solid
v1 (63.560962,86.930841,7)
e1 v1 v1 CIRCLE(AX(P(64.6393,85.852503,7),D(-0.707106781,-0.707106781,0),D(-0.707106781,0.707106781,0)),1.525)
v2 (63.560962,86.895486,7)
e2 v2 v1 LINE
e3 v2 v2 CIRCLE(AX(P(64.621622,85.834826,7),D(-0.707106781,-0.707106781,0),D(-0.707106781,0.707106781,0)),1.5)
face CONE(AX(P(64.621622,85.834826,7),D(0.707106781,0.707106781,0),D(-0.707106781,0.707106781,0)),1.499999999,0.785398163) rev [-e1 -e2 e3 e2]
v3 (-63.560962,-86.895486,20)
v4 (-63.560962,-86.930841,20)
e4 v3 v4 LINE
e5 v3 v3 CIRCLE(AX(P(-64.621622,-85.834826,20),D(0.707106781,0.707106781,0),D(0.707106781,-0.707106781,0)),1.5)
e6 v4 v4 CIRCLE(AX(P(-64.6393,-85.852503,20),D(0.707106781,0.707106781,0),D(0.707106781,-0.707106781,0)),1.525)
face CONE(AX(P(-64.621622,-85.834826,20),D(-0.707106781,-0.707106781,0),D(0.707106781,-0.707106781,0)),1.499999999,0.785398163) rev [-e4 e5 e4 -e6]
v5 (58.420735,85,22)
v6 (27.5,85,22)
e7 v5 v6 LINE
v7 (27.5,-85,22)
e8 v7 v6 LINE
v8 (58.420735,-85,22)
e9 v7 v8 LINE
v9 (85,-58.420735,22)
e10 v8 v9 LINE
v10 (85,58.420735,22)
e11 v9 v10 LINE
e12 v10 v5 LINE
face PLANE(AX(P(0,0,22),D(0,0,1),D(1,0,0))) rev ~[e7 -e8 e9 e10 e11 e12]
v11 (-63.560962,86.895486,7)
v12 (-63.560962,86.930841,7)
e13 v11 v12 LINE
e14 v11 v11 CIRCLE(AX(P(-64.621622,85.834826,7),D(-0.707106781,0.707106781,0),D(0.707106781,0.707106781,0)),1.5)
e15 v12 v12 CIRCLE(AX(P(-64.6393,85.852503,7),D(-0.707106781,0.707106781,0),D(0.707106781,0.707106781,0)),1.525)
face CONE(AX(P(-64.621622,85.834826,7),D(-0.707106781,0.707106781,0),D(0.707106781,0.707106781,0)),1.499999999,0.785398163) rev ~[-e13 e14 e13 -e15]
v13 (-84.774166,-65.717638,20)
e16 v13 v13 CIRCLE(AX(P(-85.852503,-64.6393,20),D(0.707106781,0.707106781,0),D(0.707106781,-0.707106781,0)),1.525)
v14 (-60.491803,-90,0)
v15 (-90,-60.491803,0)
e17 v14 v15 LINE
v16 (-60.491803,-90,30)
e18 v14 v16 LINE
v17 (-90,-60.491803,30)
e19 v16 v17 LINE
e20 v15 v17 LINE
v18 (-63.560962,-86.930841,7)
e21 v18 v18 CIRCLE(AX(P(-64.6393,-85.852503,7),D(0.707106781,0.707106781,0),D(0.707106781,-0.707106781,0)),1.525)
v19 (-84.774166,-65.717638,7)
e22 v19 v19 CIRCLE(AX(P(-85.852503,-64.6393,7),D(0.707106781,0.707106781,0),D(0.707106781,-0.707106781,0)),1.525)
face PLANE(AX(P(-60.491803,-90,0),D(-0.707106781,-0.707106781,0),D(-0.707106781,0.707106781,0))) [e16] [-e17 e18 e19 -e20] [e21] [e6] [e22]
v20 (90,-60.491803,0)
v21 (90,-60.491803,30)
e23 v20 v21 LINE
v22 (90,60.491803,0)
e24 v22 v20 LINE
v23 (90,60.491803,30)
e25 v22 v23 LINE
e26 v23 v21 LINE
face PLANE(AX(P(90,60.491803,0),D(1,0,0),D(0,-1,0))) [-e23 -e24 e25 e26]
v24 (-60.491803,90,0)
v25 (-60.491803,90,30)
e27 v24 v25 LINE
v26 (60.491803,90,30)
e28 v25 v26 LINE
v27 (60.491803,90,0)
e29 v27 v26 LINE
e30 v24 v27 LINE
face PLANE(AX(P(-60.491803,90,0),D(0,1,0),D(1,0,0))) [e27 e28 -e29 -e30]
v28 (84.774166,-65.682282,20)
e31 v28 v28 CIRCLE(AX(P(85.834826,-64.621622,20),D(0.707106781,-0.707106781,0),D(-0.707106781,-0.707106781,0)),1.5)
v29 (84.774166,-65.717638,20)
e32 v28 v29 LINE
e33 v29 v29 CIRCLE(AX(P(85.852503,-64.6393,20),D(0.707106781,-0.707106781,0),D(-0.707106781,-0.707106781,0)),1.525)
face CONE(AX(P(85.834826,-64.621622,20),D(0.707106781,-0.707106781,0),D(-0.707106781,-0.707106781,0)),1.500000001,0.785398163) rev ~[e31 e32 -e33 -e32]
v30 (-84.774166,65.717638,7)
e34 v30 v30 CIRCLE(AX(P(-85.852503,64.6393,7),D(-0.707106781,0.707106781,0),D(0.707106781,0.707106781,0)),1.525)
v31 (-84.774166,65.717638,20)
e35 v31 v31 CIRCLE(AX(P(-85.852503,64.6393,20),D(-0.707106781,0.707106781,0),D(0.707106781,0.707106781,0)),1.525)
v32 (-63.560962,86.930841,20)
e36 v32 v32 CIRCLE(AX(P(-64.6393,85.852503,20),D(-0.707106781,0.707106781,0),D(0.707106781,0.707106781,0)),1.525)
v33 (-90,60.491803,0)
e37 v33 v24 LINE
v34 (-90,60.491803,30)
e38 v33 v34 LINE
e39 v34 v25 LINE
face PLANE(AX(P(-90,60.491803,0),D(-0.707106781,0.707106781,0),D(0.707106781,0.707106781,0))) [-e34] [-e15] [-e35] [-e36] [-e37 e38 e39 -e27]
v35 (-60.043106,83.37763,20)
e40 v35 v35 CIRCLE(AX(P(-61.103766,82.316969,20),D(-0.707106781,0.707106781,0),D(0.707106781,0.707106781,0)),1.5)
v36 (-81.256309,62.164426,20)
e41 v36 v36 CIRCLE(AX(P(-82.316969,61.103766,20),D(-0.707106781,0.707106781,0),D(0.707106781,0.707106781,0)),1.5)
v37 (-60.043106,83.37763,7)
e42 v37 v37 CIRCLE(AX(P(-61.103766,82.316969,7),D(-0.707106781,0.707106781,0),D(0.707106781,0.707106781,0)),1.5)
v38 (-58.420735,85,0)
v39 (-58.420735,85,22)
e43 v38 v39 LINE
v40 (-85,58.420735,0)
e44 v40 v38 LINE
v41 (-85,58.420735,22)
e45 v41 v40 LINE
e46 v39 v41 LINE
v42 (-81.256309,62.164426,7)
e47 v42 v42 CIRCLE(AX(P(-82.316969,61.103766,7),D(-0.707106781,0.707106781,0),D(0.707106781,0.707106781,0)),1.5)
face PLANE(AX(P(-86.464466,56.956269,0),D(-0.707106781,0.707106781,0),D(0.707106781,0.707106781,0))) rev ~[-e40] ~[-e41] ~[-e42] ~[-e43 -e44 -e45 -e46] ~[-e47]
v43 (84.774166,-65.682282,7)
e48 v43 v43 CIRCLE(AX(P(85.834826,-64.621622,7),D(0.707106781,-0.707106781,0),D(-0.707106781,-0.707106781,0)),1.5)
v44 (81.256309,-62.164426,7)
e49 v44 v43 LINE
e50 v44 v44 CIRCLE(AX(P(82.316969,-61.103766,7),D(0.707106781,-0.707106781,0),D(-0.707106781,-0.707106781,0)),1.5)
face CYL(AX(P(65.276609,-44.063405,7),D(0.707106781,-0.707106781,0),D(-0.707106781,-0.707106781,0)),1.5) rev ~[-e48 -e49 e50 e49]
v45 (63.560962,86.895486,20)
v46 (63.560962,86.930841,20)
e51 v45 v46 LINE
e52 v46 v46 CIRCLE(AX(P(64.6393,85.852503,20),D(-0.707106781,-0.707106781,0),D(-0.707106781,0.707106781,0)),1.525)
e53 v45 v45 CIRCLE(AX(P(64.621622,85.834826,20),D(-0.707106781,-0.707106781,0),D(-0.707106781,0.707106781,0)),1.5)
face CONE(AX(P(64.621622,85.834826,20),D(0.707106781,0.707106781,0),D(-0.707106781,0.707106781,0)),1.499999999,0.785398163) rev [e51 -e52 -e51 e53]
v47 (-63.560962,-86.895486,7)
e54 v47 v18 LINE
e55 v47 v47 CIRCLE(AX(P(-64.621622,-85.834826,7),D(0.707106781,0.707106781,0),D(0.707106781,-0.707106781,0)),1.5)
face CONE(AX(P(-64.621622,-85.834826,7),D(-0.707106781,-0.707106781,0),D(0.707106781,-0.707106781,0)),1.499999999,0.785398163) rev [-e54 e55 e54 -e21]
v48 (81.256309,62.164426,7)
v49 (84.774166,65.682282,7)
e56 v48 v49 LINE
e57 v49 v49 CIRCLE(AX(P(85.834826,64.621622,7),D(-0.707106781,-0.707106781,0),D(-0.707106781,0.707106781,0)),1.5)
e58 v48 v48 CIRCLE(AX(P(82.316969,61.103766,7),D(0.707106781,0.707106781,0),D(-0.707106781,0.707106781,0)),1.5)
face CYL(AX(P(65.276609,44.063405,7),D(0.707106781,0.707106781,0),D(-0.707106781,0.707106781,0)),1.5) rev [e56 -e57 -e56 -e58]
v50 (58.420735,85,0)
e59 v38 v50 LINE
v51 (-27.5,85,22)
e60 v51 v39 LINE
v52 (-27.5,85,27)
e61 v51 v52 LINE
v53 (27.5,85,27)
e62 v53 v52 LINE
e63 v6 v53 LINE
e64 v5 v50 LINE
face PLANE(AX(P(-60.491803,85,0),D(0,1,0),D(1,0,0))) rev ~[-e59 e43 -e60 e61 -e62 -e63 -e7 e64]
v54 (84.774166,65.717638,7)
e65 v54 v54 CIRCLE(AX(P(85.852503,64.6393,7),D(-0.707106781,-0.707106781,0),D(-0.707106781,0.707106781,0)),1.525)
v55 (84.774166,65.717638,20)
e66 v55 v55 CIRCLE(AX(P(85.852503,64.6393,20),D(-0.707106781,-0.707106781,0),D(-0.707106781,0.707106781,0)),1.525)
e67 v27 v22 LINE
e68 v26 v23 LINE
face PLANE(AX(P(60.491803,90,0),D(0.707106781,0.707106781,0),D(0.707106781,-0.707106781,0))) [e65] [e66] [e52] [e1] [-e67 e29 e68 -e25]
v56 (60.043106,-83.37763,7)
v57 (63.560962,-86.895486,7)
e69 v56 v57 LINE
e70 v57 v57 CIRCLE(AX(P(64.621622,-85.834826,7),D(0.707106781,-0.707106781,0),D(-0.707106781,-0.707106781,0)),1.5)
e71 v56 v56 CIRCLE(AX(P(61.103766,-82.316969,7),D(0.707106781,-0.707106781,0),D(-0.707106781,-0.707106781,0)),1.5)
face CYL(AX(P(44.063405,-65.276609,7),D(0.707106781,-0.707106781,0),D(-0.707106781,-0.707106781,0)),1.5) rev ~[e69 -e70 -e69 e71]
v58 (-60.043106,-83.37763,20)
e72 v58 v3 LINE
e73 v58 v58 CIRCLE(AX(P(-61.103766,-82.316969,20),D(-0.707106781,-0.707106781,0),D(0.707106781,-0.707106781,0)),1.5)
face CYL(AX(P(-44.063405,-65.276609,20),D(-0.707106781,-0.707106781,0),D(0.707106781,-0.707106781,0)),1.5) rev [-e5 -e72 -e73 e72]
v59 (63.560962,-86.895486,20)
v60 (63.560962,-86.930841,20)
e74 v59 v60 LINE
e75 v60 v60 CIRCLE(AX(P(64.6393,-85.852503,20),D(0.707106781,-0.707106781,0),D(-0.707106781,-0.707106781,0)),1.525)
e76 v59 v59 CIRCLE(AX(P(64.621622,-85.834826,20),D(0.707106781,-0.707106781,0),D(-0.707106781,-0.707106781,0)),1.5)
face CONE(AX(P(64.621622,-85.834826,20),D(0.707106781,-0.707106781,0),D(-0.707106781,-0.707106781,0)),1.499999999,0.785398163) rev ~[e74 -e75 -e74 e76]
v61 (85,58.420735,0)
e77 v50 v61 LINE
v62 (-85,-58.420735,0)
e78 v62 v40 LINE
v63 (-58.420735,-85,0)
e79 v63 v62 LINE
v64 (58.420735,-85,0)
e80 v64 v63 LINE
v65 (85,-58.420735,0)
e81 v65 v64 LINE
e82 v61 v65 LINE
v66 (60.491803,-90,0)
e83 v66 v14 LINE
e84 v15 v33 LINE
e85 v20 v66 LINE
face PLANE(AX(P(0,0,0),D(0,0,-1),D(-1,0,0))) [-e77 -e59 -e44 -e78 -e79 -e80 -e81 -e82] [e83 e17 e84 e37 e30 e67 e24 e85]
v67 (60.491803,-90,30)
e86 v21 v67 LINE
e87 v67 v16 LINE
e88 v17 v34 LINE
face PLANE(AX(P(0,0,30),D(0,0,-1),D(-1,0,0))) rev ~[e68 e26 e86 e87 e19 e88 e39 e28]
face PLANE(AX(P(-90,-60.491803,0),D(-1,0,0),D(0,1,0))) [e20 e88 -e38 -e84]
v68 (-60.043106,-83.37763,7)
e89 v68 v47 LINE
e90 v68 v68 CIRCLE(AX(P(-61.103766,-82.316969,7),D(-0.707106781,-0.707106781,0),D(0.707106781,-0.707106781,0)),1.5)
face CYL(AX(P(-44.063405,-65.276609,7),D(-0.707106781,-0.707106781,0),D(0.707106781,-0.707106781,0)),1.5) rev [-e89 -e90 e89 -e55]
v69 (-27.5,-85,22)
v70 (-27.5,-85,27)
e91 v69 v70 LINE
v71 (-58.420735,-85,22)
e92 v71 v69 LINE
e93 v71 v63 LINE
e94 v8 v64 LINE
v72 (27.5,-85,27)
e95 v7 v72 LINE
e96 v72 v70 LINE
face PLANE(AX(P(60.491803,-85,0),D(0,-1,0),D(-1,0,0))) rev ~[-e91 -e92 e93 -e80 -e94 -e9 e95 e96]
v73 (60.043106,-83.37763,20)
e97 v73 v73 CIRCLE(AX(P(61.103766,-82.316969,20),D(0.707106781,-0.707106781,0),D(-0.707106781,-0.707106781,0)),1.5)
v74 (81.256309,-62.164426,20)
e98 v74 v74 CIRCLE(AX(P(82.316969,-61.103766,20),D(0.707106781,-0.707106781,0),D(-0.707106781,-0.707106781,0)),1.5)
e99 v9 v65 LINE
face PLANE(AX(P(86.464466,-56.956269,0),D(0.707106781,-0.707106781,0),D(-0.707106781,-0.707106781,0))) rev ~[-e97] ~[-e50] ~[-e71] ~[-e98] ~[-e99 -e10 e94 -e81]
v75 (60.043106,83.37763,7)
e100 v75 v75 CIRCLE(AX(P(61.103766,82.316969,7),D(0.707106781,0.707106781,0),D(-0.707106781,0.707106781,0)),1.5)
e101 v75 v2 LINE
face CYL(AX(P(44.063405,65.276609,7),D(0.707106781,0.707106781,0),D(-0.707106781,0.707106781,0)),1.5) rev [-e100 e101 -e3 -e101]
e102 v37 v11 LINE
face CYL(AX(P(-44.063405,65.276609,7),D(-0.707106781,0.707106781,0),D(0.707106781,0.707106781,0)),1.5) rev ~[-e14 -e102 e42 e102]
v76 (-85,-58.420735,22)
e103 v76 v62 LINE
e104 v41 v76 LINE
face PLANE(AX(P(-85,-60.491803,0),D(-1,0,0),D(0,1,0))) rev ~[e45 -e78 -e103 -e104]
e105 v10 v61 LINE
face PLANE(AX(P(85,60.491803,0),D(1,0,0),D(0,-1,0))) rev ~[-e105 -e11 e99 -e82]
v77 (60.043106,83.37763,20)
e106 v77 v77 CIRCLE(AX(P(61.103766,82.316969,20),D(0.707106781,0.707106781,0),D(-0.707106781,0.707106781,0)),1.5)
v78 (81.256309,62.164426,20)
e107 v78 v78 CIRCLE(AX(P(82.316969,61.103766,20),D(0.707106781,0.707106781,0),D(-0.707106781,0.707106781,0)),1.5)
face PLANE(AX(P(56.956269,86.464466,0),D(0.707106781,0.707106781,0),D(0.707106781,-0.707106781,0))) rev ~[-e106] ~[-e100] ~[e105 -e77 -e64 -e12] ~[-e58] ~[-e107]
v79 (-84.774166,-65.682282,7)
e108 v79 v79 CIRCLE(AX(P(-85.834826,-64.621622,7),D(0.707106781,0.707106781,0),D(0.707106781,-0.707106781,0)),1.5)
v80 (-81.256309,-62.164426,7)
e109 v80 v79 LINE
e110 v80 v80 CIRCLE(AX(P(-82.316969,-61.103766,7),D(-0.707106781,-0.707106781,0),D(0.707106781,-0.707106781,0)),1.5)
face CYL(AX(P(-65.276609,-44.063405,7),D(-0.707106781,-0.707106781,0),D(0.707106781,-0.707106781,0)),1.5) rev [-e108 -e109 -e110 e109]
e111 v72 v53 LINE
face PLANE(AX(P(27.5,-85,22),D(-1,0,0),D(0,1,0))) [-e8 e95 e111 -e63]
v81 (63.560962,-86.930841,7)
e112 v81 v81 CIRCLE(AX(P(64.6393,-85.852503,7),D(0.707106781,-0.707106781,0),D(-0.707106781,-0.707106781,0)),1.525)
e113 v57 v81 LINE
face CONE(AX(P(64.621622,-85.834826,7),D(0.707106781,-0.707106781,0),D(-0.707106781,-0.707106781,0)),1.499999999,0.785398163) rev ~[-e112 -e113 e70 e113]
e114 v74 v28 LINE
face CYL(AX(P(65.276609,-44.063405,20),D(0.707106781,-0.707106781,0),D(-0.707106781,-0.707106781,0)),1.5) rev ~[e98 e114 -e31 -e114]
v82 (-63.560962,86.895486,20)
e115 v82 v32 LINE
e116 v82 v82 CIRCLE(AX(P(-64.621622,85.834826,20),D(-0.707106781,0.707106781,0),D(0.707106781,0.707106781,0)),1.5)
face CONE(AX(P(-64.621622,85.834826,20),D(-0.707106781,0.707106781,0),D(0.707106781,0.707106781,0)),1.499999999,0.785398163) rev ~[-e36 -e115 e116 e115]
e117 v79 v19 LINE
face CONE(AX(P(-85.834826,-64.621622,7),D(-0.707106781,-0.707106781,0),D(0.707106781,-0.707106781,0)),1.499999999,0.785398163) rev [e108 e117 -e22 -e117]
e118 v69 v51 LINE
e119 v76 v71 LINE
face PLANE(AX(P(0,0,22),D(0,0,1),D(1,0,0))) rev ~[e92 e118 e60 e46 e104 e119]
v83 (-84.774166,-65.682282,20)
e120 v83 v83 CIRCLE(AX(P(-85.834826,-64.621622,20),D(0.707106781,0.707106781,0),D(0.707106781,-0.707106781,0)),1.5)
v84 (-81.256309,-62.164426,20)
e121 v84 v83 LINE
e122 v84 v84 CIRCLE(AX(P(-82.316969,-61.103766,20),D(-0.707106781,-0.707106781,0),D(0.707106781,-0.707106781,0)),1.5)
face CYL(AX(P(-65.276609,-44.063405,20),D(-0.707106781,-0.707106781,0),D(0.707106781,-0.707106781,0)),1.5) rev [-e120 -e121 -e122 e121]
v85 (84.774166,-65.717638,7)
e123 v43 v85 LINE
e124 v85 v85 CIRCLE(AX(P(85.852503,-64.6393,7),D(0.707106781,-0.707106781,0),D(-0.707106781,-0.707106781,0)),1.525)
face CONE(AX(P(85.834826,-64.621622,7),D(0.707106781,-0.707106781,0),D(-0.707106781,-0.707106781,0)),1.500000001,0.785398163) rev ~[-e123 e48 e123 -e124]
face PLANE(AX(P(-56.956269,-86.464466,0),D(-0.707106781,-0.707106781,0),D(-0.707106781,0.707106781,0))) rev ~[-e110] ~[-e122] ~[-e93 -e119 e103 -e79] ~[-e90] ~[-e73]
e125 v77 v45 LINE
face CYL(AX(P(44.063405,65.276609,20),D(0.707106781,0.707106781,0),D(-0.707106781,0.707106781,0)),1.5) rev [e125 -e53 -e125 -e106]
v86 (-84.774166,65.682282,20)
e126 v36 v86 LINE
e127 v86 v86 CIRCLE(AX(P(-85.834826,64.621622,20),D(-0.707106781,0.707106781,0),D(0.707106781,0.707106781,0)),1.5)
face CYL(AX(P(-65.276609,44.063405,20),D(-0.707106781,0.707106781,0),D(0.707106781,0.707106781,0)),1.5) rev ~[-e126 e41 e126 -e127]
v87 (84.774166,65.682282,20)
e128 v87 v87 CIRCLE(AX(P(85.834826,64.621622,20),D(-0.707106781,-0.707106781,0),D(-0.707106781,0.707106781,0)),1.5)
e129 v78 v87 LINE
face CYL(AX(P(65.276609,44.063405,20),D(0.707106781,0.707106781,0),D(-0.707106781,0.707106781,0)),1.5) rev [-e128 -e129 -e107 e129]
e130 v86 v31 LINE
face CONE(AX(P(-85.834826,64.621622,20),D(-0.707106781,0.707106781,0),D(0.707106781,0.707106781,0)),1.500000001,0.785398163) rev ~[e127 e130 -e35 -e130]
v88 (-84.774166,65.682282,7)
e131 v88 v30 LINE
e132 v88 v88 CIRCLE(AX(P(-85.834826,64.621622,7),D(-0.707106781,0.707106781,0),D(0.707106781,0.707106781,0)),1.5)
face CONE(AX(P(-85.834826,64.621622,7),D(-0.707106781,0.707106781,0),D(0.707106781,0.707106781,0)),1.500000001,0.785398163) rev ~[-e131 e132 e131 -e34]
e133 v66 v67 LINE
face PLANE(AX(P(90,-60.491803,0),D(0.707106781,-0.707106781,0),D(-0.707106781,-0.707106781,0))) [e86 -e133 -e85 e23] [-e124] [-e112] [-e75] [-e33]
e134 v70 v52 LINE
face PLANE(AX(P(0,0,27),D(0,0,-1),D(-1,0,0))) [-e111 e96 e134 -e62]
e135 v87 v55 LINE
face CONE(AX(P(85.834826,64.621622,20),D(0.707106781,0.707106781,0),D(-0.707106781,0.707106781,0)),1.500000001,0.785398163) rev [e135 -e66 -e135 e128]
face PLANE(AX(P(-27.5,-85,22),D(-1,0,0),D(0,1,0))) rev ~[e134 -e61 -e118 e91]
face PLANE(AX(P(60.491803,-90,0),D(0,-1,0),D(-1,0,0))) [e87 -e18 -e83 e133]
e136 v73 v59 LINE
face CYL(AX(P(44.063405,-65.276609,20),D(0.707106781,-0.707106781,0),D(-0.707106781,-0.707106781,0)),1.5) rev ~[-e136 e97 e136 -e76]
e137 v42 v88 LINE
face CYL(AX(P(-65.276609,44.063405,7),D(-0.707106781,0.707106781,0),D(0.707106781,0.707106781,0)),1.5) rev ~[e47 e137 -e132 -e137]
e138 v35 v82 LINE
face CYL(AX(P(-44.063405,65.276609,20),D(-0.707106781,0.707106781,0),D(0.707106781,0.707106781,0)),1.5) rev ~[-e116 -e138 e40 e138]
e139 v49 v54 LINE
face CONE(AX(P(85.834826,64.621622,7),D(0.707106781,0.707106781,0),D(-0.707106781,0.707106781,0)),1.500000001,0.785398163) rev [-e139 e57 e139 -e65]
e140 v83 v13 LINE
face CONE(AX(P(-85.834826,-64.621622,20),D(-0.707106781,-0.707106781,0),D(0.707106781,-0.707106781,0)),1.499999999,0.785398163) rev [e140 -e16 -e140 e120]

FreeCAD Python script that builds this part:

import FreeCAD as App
import Part
import Sketcher
Q = App.Units.Quantity


def faces_at(feature, points):
    """Names of the faces that lie closest to the given points."""
    faces = feature.Shape.Faces
    near = lambda p: min(range(len(faces)), key=lambda i: faces[i].distToShape(Part.Vertex(*p))[0])
    return sorted({f"Face{near(p) + 1}" for p in points})

doc = App.newDocument("Part")
body = doc.addObject("PartDesign::Body", "Body")

# Sketch on XY plane
sketch1 = body.newObject("Sketcher::SketchObject", "Sketch")
sketch1.AttachmentSupport = (doc.getObject("XY_Plane"), [""])
sketch1.MapMode = "FlatFace"
sketch1.addGeometry(Part.LineSegment(App.Vector(60, 90, 0), App.Vector(-60, 90, 0)), False)
sketch1.addGeometry(Part.LineSegment(App.Vector(-60, 90, 0), App.Vector(-90, 60, 0)), False)
sketch1.addGeometry(Part.LineSegment(App.Vector(-90, 60, 0), App.Vector(-90, -60, 0)), False)
sketch1.addGeometry(Part.LineSegment(App.Vector(-90, -60, 0), App.Vector(-60, -90, 0)), False)
sketch1.addGeometry(Part.LineSegment(App.Vector(-60, -90, 0), App.Vector(60, -90, 0)), False)
sketch1.addGeometry(Part.LineSegment(App.Vector(60, -90, 0), App.Vector(90, -60, 0)), False)
sketch1.addGeometry(Part.LineSegment(App.Vector(90, -60, 0), App.Vector(90, 60, 0)), False)
sketch1.addGeometry(Part.LineSegment(App.Vector(90, 60, 0), App.Vector(60, 90, 0)), False)
sketch1.addConstraint(Sketcher.Constraint("Coincident", 0, 2, 1, 1))
sketch1.addConstraint(Sketcher.Constraint("Coincident", 1, 2, 2, 1))
sketch1.addConstraint(Sketcher.Constraint("Coincident", 2, 2, 3, 1))
sketch1.addConstraint(Sketcher.Constraint("Coincident", 3, 2, 4, 1))
sketch1.addConstraint(Sketcher.Constraint("Coincident", 4, 2, 5, 1))
sketch1.addConstraint(Sketcher.Constraint("Coincident", 5, 2, 6, 1))
sketch1.addConstraint(Sketcher.Constraint("Coincident", 6, 2, 7, 1))
sketch1.addConstraint(Sketcher.Constraint("Coincident", 7, 2, 0, 1))
sketch1.addConstraint(Sketcher.Constraint("Horizontal", 0))
sketch1.addConstraint(Sketcher.Constraint("Vertical", 2))
sketch1.addConstraint(Sketcher.Constraint("Horizontal", 4))
sketch1.addConstraint(Sketcher.Constraint("Vertical", 6))
sketch1.addConstraint(Sketcher.Constraint("Symmetric", 0, 2, 4, 2, -1, 1))
sketch1.addConstraint(Sketcher.Constraint("Symmetric", 1, 2, 5, 2, -1, 1))
sketch1.addConstraint(Sketcher.Constraint("Perpendicular", 1, 3))
sketch1.addConstraint(Sketcher.Constraint("Perpendicular", 5, 7))
sketch1.addConstraint(Sketcher.Constraint("Horizontal", 2, 2, 5, 2))
sketch1.addConstraint(Sketcher.Constraint("Horizontal", 1, 2, 6, 2))
sketch1.addConstraint(Sketcher.Constraint("Vertical", 0, 2, 3, 2))
sketch1.addConstraint(Sketcher.Constraint("Equal", 4, 2))
sketch1.addConstraint(Sketcher.Constraint("DistanceY", -1, 1, 0, 2, 90.0))
sketch1.addConstraint(Sketcher.Constraint("DistanceX", 0, 2, 0, 1, 120.983607))
pad1 = body.newObject("PartDesign::Pad", "Pad")
pad1.Profile = sketch1
pad1.Length = 30
doc.recompute()

thickness = body.newObject("PartDesign::Thickness", "Thickness")
thickness.Base = (pad1, faces_at(pad1, [(0, 0, 0)]))
thickness.Value = 5
thickness.Reversed = True
thickness.Join = "Intersection"

# Sketch on XY plane
sketch2 = body.newObject("Sketcher::SketchObject", "Sketch001")
sketch2.AttachmentSupport = (doc.getObject("XY_Plane"), [""])
sketch2.MapMode = "FlatFace"
sketch2.AttachmentOffset = App.Placement(App.Vector(0, 0, 7), App.Rotation())
sketch2.addGeometry(Part.LineSegment(App.Vector(-43.426, -64.639, 0), App.Vector(-64.639, -85.853, 0)), False)
sketch2.addGeometry(Part.LineSegment(App.Vector(-64.639, -85.853, 0), App.Vector(-63.561, -86.931, 0)), False)
sketch2.addGeometry(Part.LineSegment(App.Vector(-63.561, -86.931, 0), App.Vector(-63.561, -86.895, 0)), False)
sketch2.addGeometry(Part.LineSegment(App.Vector(-63.561, -86.895, 0), App.Vector(-43.003, -66.337, 0)), False)
sketch2.addGeometry(Part.LineSegment(App.Vector(-43.003, -66.337, 0), App.Vector(-43.426, -64.639, 0)), False)
sketch2.addGeometry(Part.LineSegment(App.Vector(-64.639, -85.853, 0), App.Vector(-43.426, -64.639, 0)), True)  # axis
sketch2.addConstraint(Sketcher.Constraint("Coincident", 0, 2, 1, 1))
sketch2.addConstraint(Sketcher.Constraint("Coincident", 1, 2, 2, 1))
sketch2.addConstraint(Sketcher.Constraint("Coincident", 2, 2, 3, 1))
sketch2.addConstraint(Sketcher.Constraint("Coincident", 3, 2, 4, 1))
sketch2.addConstraint(Sketcher.Constraint("Coincident", 4, 2, 0, 1))
sketch2.addConstraint(Sketcher.Constraint("Vertical", 2))
sketch2.addConstraint(Sketcher.Constraint("Coincident", 5, 1, 0, 2))
sketch2.addConstraint(Sketcher.Constraint("Coincident", 5, 2, 4, 2))
sketch2.addConstraint(Sketcher.Constraint("Perpendicular", 0, 1))
sketch2.addConstraint(Sketcher.Constraint("Perpendicular", 1, 3))
sketch2.addConstraint(Sketcher.Constraint("Angle", 0, Q("-135 deg")))
sketch2.addConstraint(Sketcher.Constraint("Angle", 4, Q("104 deg")))
sketch2.addConstraint(Sketcher.Constraint("Distance", 0, 30.0))
sketch2.addConstraint(Sketcher.Constraint("Distance", 1, 1.525))
sketch2.addConstraint(Sketcher.Constraint("DistanceX", 0, 2, -1, 1, 64.6393))
sketch2.addConstraint(Sketcher.Constraint("DistanceY", 4, 2, -1, 1, 64.6393))
sketch2.addConstraint(Sketcher.Constraint("Distance", 3, 29.073709))
groove = body.newObject("PartDesign::Groove", "Groove")
groove.Profile = sketch2
groove.ReferenceAxis = (sketch2, ["Axis0"])
groove.Angle = 360
doc.recompute()

datumline = body.newObject("PartDesign::Line", "DatumLine")
datumline.Placement = App.Placement(App.Vector(0, 0, 0), App.Rotation(App.Vector(0, 0, 1), App.Vector(-0.707106781, 0.707106781, 0)))
linearpattern = body.newObject("PartDesign::LinearPattern", "LinearPattern")
linearpattern.Originals = [groove]
linearpattern.Direction = (datumline, [""])
linearpattern.Mode = "offset"
linearpattern.Offset = 30
linearpattern.Occurrences = 2
body.Tip = linearpattern
doc.recompute()

datumline2 = body.newObject("PartDesign::Line", "DatumLine001")
datumline2.Placement = App.Placement(App.Vector(0, 0, 0), App.Rotation(App.Vector(0, 0, 1), App.Vector(-0.648809805, 0.648809805, 0.397607438)))
linearpattern2 = body.newObject("PartDesign::LinearPattern", "LinearPattern001")
linearpattern2.Originals = [groove]
linearpattern2.Direction = (datumline2, [""])
linearpattern2.Mode = "offset"
linearpattern2.Offset = 32.695565
linearpattern2.Occurrences = 2
body.Tip = linearpattern2
doc.recompute()

linearpattern3 = body.newObject("PartDesign::LinearPattern", "LinearPattern002")
linearpattern3.Originals = [groove]
linearpattern3.Direction = (doc.getObject("Z_Axis"), [""])
linearpattern3.Mode = "offset"
linearpattern3.Offset = 13
linearpattern3.Occurrences = 2
body.Tip = linearpattern3
doc.recompute()

mirrored = body.newObject("PartDesign::Mirrored", "Mirrored")
mirrored.Originals = [groove]
mirrored.MirrorPlane = (doc.getObject("XZ_Plane"), [""])
body.Tip = mirrored

# Sketch on XY plane
sketch3 = body.newObject("Sketcher::SketchObject", "Sketch002")
sketch3.AttachmentSupport = (doc.getObject("XY_Plane"), [""])
sketch3.MapMode = "FlatFace"
sketch3.AttachmentOffset = App.Placement(App.Vector(0, 0, 7), App.Rotation())
sketch3.addGeometry(Part.LineSegment(App.Vector(-85.853, 64.639, 0), App.Vector(-64.639, 43.426, 0)), False)
sketch3.addGeometry(Part.LineSegment(App.Vector(-64.639, 43.426, 0), App.Vector(-64.216, 45.124, 0)), False)
sketch3.addGeometry(Part.LineSegment(App.Vector(-64.216, 45.124, 0), App.Vector(-84.774, 65.682, 0)), False)
sketch3.addGeometry(Part.LineSegment(App.Vector(-84.774, 65.682, 0), App.Vector(-84.774, 65.718, 0)), False)
sketch3.addGeometry(Part.LineSegment(App.Vector(-84.774, 65.718, 0), App.Vector(-85.853, 64.639, 0)), False)
sketch3.addGeometry(Part.LineSegment(App.Vector(-64.639, 43.426, 0), App.Vector(-85.853, 64.639, 0)), True)  # axis
sketch3.addConstraint(Sketcher.Constraint("Coincident", 0, 2, 1, 1))
sketch3.addConstraint(Sketcher.Constraint("Coincident", 1, 2, 2, 1))
sketch3.addConstraint(Sketcher.Constraint("Coincident", 2, 2, 3, 1))
sketch3.addConstraint(Sketcher.Constraint("Coincident", 3, 2, 4, 1))
sketch3.addConstraint(Sketcher.Constraint("Coincident", 4, 2, 0, 1))
sketch3.addConstraint(Sketcher.Constraint("Vertical", 3))
sketch3.addConstraint(Sketcher.Constraint("Coincident", 5, 1, 0, 2))
sketch3.addConstraint(Sketcher.Constraint("Coincident", 5, 2, 4, 2))
sketch3.addConstraint(Sketcher.Constraint("Parallel", 0, 2))
sketch3.addConstraint(Sketcher.Constraint("Perpendicular", 2, 4))
sketch3.addConstraint(Sketcher.Constraint("Angle", 0, Q("-45 deg")))
sketch3.addConstraint(Sketcher.Constraint("Angle", 1, Q("76 deg")))
sketch3.addConstraint(Sketcher.Constraint("Distance", 0, 30.0))
sketch3.addConstraint(Sketcher.Constraint("Distance", 4, 1.525))
sketch3.addConstraint(Sketcher.Constraint("DistanceX", 0, 2, -1, 1, 64.6393))
sketch3.addConstraint(Sketcher.Constraint("DistanceY", -1, 1, 4, 2, 64.6393))
sketch3.addConstraint(Sketcher.Constraint("Distance", 1, 1.74995))
groove2 = body.newObject("PartDesign::Groove", "Groove001")
groove2.Profile = sketch3
groove2.ReferenceAxis = (sketch3, ["Axis0"])
groove2.Angle = 360

# Sketch on XY plane
sketch4 = body.newObject("Sketcher::SketchObject", "Sketch003")
sketch4.AttachmentSupport = (doc.getObject("XY_Plane"), [""])
sketch4.MapMode = "FlatFace"
sketch4.AttachmentOffset = App.Placement(App.Vector(0, 0, 20), App.Rotation())
sketch4.addGeometry(Part.LineSegment(App.Vector(-85.853, 64.639, 0), App.Vector(-64.639, 43.426, 0)), False)
sketch4.addGeometry(Part.LineSegment(App.Vector(-64.639, 43.426, 0), App.Vector(-64.216, 45.124, 0)), False)
sketch4.addGeometry(Part.LineSegment(App.Vector(-64.216, 45.124, 0), App.Vector(-84.774, 65.682, 0)), False)
sketch4.addGeometry(Part.LineSegment(App.Vector(-84.774, 65.682, 0), App.Vector(-84.774, 65.718, 0)), False)
sketch4.addGeometry(Part.LineSegment(App.Vector(-84.774, 65.718, 0), App.Vector(-85.853, 64.639, 0)), False)
sketch4.addGeometry(Part.LineSegment(App.Vector(-64.639, 43.426, 0), App.Vector(-85.853, 64.639, 0)), True)  # axis
sketch4.addConstraint(Sketcher.Constraint("Coincident", 0, 2, 1, 1))
sketch4.addConstraint(Sketcher.Constraint("Coincident", 1, 2, 2, 1))
sketch4.addConstraint(Sketcher.Constraint("Coincident", 2, 2, 3, 1))
sketch4.addConstraint(Sketcher.Constraint("Coincident", 3, 2, 4, 1))
sketch4.addConstraint(Sketcher.Constraint("Coincident", 4, 2, 0, 1))
sketch4.addConstraint(Sketcher.Constraint("Vertical", 3))
sketch4.addConstraint(Sketcher.Constraint("Coincident", 5, 1, 0, 2))
sketch4.addConstraint(Sketcher.Constraint("Coincident", 5, 2, 4, 2))
sketch4.addConstraint(Sketcher.Constraint("Parallel", 0, 2))
sketch4.addConstraint(Sketcher.Constraint("Perpendicular", 2, 4))
sketch4.addConstraint(Sketcher.Constraint("Angle", 0, Q("-45 deg")))
sketch4.addConstraint(Sketcher.Constraint("Angle", 1, Q("76 deg")))
sketch4.addConstraint(Sketcher.Constraint("Distance", 0, 30.0))
sketch4.addConstraint(Sketcher.Constraint("Distance", 4, 1.525))
sketch4.addConstraint(Sketcher.Constraint("DistanceX", 0, 2, -1, 1, 64.6393))
sketch4.addConstraint(Sketcher.Constraint("DistanceY", -1, 1, 4, 2, 64.6393))
sketch4.addConstraint(Sketcher.Constraint("Distance", 1, 1.74995))
groove3 = body.newObject("PartDesign::Groove", "Groove002")
groove3.Profile = sketch4
groove3.ReferenceAxis = (sketch4, ["Axis0"])
groove3.Angle = 360

# Sketch on XY plane
sketch5 = body.newObject("Sketcher::SketchObject", "Sketch004")
sketch5.AttachmentSupport = (doc.getObject("XY_Plane"), [""])
sketch5.MapMode = "FlatFace"
sketch5.AttachmentOffset = App.Placement(App.Vector(0, 0, 20), App.Rotation())
sketch5.addGeometry(Part.LineSegment(App.Vector(-64.639, 85.853, 0), App.Vector(-43.426, 64.639, 0)), False)
sketch5.addGeometry(Part.LineSegment(App.Vector(-43.426, 64.639, 0), App.Vector(-43.003, 66.337, 0)), False)
sketch5.addGeometry(Part.LineSegment(App.Vector(-43.003, 66.337, 0), App.Vector(-63.561, 86.895, 0)), False)
sketch5.addGeometry(Part.LineSegment(App.Vector(-63.561, 86.895, 0), App.Vector(-63.561, 86.931, 0)), False)
sketch5.addGeometry(Part.LineSegment(App.Vector(-63.561, 86.931, 0), App.Vector(-64.639, 85.853, 0)), False)
sketch5.addGeometry(Part.LineSegment(App.Vector(-43.426, 64.639, 0), App.Vector(-64.639, 85.853, 0)), True)  # axis
sketch5.addConstraint(Sketcher.Constraint("Coincident", 0, 2, 1, 1))
sketch5.addConstraint(Sketcher.Constraint("Coincident", 1, 2, 2, 1))
sketch5.addConstraint(Sketcher.Constraint("Coincident", 2, 2, 3, 1))
sketch5.addConstraint(Sketcher.Constraint("Coincident", 3, 2, 4, 1))
sketch5.addConstraint(Sketcher.Constraint("Coincident", 4, 2, 0, 1))
sketch5.addConstraint(Sketcher.Constraint("Vertical", 3))
sketch5.addConstraint(Sketcher.Constraint("Coincident", 5, 1, 0, 2))
sketch5.addConstraint(Sketcher.Constraint("Coincident", 5, 2, 4, 2))
sketch5.addConstraint(Sketcher.Constraint("Parallel", 0, 2))
sketch5.addConstraint(Sketcher.Constraint("Perpendicular", 2, 4))
sketch5.addConstraint(Sketcher.Constraint("Angle", 0, Q("-45 deg")))
sketch5.addConstraint(Sketcher.Constraint("Angle", 1, Q("76 deg")))
sketch5.addConstraint(Sketcher.Constraint("Distance", 0, 30.0))
sketch5.addConstraint(Sketcher.Constraint("Distance", 4, 1.525))
sketch5.addConstraint(Sketcher.Constraint("DistanceY", -1, 1, 0, 2, 64.6393))
sketch5.addConstraint(Sketcher.Constraint("DistanceX", 4, 2, -1, 1, 64.6393))
sketch5.addConstraint(Sketcher.Constraint("Distance", 1, 1.74995))
groove4 = body.newObject("PartDesign::Groove", "Groove003")
groove4.Profile = sketch5
groove4.ReferenceAxis = (sketch5, ["Axis0"])
groove4.Angle = 360
doc.recompute()

mirrored2 = body.newObject("PartDesign::Mirrored", "Mirrored001")
mirrored2.Originals = [groove]
mirrored2.MirrorPlane = (doc.getObject("YZ_Plane"), [""])
body.Tip = mirrored2

# Sketch on XY plane
sketch6 = body.newObject("Sketcher::SketchObject", "Sketch005")
sketch6.AttachmentSupport = (doc.getObject("XY_Plane"), [""])
sketch6.MapMode = "FlatFace"
sketch6.AttachmentOffset = App.Placement(App.Vector(0, 0, 7), App.Rotation())
sketch6.addGeometry(Part.LineSegment(App.Vector(85.853, -64.639, 0), App.Vector(64.639, -43.426, 0)), False)
sketch6.addGeometry(Part.LineSegment(App.Vector(64.639, -43.426, 0), App.Vector(64.216, -45.124, 0)), False)
sketch6.addGeometry(Part.LineSegment(App.Vector(64.216, -45.124, 0), App.Vector(84.774, -65.682, 0)), False)
sketch6.addGeometry(Part.LineSegment(App.Vector(84.774, -65.682, 0), App.Vector(84.774, -65.718, 0)), False)
sketch6.addGeometry(Part.LineSegment(App.Vector(84.774, -65.718, 0), App.Vector(85.853, -64.639, 0)), False)
sketch6.addGeometry(Part.LineSegment(App.Vector(64.639, -43.426, 0), App.Vector(85.853, -64.639, 0)), True)  # axis
sketch6.addConstraint(Sketcher.Constraint("Coincident", 0, 2, 1, 1))
sketch6.addConstraint(Sketcher.Constraint("Coincident", 1, 2, 2, 1))
sketch6.addConstraint(Sketcher.Constraint("Coincident", 2, 2, 3, 1))
sketch6.addConstraint(Sketcher.Constraint("Coincident", 3, 2, 4, 1))
sketch6.addConstraint(Sketcher.Constraint("Coincident", 4, 2, 0, 1))
sketch6.addConstraint(Sketcher.Constraint("Vertical", 3))
sketch6.addConstraint(Sketcher.Constraint("Coincident", 5, 1, 0, 2))
sketch6.addConstraint(Sketcher.Constraint("Coincident", 5, 2, 4, 2))
sketch6.addConstraint(Sketcher.Constraint("Parallel", 0, 2))
sketch6.addConstraint(Sketcher.Constraint("Perpendicular", 2, 4))
sketch6.addConstraint(Sketcher.Constraint("Angle", 0, Q("135 deg")))
sketch6.addConstraint(Sketcher.Constraint("Angle", 1, Q("-104 deg")))
sketch6.addConstraint(Sketcher.Constraint("Distance", 0, 30.0))
sketch6.addConstraint(Sketcher.Constraint("Distance", 4, 1.525))
sketch6.addConstraint(Sketcher.Constraint("DistanceX", -1, 1, 0, 2, 64.6393))
sketch6.addConstraint(Sketcher.Constraint("DistanceY", 4, 2, -1, 1, 64.6393))
sketch6.addConstraint(Sketcher.Constraint("Distance", 1, 1.74995))
groove5 = body.newObject("PartDesign::Groove", "Groove004")
groove5.Profile = sketch6
groove5.ReferenceAxis = (sketch6, ["Axis0"])
groove5.Angle = 360

# Sketch on XY plane
sketch7 = body.newObject("Sketcher::SketchObject", "Sketch006")
sketch7.AttachmentSupport = (doc.getObject("XY_Plane"), [""])
sketch7.MapMode = "FlatFace"
sketch7.AttachmentOffset = App.Placement(App.Vector(0, 0, 20), App.Rotation())
sketch7.addGeometry(Part.LineSegment(App.Vector(85.853, -64.639, 0), App.Vector(64.639, -43.426, 0)), False)
sketch7.addGeometry(Part.LineSegment(App.Vector(64.639, -43.426, 0), App.Vector(64.216, -45.124, 0)), False)
sketch7.addGeometry(Part.LineSegment(App.Vector(64.216, -45.124, 0), App.Vector(84.774, -65.682, 0)), False)
sketch7.addGeometry(Part.LineSegment(App.Vector(84.774, -65.682, 0), App.Vector(84.774, -65.718, 0)), False)
sketch7.addGeometry(Part.LineSegment(App.Vector(84.774, -65.718, 0), App.Vector(85.853, -64.639, 0)), False)
sketch7.addGeometry(Part.LineSegment(App.Vector(64.639, -43.426, 0), App.Vector(85.853, -64.639, 0)), True)  # axis
sketch7.addConstraint(Sketcher.Constraint("Coincident", 0, 2, 1, 1))
sketch7.addConstraint(Sketcher.Constraint("Coincident", 1, 2, 2, 1))
sketch7.addConstraint(Sketcher.Constraint("Coincident", 2, 2, 3, 1))
sketch7.addConstraint(Sketcher.Constraint("Coincident", 3, 2, 4, 1))
sketch7.addConstraint(Sketcher.Constraint("Coincident", 4, 2, 0, 1))
sketch7.addConstraint(Sketcher.Constraint("Vertical", 3))
sketch7.addConstraint(Sketcher.Constraint("Coincident", 5, 1, 0, 2))
sketch7.addConstraint(Sketcher.Constraint("Coincident", 5, 2, 4, 2))
sketch7.addConstraint(Sketcher.Constraint("Parallel", 0, 2))
sketch7.addConstraint(Sketcher.Constraint("Perpendicular", 2, 4))
sketch7.addConstraint(Sketcher.Constraint("Angle", 0, Q("135 deg")))
sketch7.addConstraint(Sketcher.Constraint("Angle", 1, Q("-104 deg")))
sketch7.addConstraint(Sketcher.Constraint("Distance", 0, 30.0))
sketch7.addConstraint(Sketcher.Constraint("Distance", 4, 1.525))
sketch7.addConstraint(Sketcher.Constraint("DistanceX", -1, 1, 0, 2, 64.6393))
sketch7.addConstraint(Sketcher.Constraint("DistanceY", 4, 2, -1, 1, 64.6393))
sketch7.addConstraint(Sketcher.Constraint("Distance", 1, 1.74995))
groove6 = body.newObject("PartDesign::Groove", "Groove005")
groove6.Profile = sketch7
groove6.ReferenceAxis = (sketch7, ["Axis0"])
groove6.Angle = 360

# Sketch on XY plane
sketch8 = body.newObject("Sketcher::SketchObject", "Sketch007")
sketch8.AttachmentSupport = (doc.getObject("XY_Plane"), [""])
sketch8.MapMode = "FlatFace"
sketch8.AttachmentOffset = App.Placement(App.Vector(0, 0, 20), App.Rotation())
sketch8.addGeometry(Part.LineSegment(App.Vector(64.639, -85.853, 0), App.Vector(43.426, -64.639, 0)), False)
sketch8.addGeometry(Part.LineSegment(App.Vector(43.426, -64.639, 0), App.Vector(43.003, -66.337, 0)), False)
sketch8.addGeometry(Part.LineSegment(App.Vector(43.003, -66.337, 0), App.Vector(63.561, -86.895, 0)), False)
sketch8.addGeometry(Part.LineSegment(App.Vector(63.561, -86.895, 0), App.Vector(63.561, -86.931, 0)), False)
sketch8.addGeometry(Part.LineSegment(App.Vector(63.561, -86.931, 0), App.Vector(64.639, -85.853, 0)), False)
sketch8.addGeometry(Part.LineSegment(App.Vector(43.426, -64.639, 0), App.Vector(64.639, -85.853, 0)), True)  # axis
sketch8.addConstraint(Sketcher.Constraint("Coincident", 0, 2, 1, 1))
sketch8.addConstraint(Sketcher.Constraint("Coincident", 1, 2, 2, 1))
sketch8.addConstraint(Sketcher.Constraint("Coincident", 2, 2, 3, 1))
sketch8.addConstraint(Sketcher.Constraint("Coincident", 3, 2, 4, 1))
sketch8.addConstraint(Sketcher.Constraint("Coincident", 4, 2, 0, 1))
sketch8.addConstraint(Sketcher.Constraint("Vertical", 3))
sketch8.addConstraint(Sketcher.Constraint("Coincident", 5, 1, 0, 2))
sketch8.addConstraint(Sketcher.Constraint("Coincident", 5, 2, 4, 2))
sketch8.addConstraint(Sketcher.Constraint("Parallel", 0, 2))
sketch8.addConstraint(Sketcher.Constraint("Perpendicular", 2, 4))
sketch8.addConstraint(Sketcher.Constraint("Angle", 0, Q("135 deg")))
sketch8.addConstraint(Sketcher.Constraint("Angle", 1, Q("-104 deg")))
sketch8.addConstraint(Sketcher.Constraint("Distance", 0, 30.0))
sketch8.addConstraint(Sketcher.Constraint("Distance", 4, 1.525))
sketch8.addConstraint(Sketcher.Constraint("DistanceY", 0, 2, -1, 1, 64.6393))
sketch8.addConstraint(Sketcher.Constraint("DistanceX", -1, 1, 4, 2, 64.6393))
sketch8.addConstraint(Sketcher.Constraint("Distance", 1, 1.74995))
groove7 = body.newObject("PartDesign::Groove", "Groove006")
groove7.Profile = sketch8
groove7.ReferenceAxis = (sketch8, ["Axis0"])
groove7.Angle = 360

# Sketch on XY plane
sketch9 = body.newObject("Sketcher::SketchObject", "Sketch008")
sketch9.AttachmentSupport = (doc.getObject("XY_Plane"), [""])
sketch9.MapMode = "FlatFace"
sketch9.AttachmentOffset = App.Placement(App.Vector(0, 0, 7), App.Rotation())
sketch9.addGeometry(Part.LineSegment(App.Vector(43.426, 64.639, 0), App.Vector(64.639, 85.853, 0)), False)
sketch9.addGeometry(Part.LineSegment(App.Vector(64.639, 85.853, 0), App.Vector(63.561, 86.931, 0)), False)
sketch9.addGeometry(Part.LineSegment(App.Vector(63.561, 86.931, 0), App.Vector(63.561, 86.895, 0)), False)
sketch9.addGeometry(Part.LineSegment(App.Vector(63.561, 86.895, 0), App.Vector(43.003, 66.337, 0)), False)
sketch9.addGeometry(Part.LineSegment(App.Vector(43.003, 66.337, 0), App.Vector(43.426, 64.639, 0)), False)
sketch9.addGeometry(Part.LineSegment(App.Vector(64.639, 85.853, 0), App.Vector(43.426, 64.639, 0)), True)  # axis
sketch9.addConstraint(Sketcher.Constraint("Coincident", 0, 2, 1, 1))
sketch9.addConstraint(Sketcher.Constraint("Coincident", 1, 2, 2, 1))
sketch9.addConstraint(Sketcher.Constraint("Coincident", 2, 2, 3, 1))
sketch9.addConstraint(Sketcher.Constraint("Coincident", 3, 2, 4, 1))
sketch9.addConstraint(Sketcher.Constraint("Coincident", 4, 2, 0, 1))
sketch9.addConstraint(Sketcher.Constraint("Vertical", 2))
sketch9.addConstraint(Sketcher.Constraint("Coincident", 5, 1, 0, 2))
sketch9.addConstraint(Sketcher.Constraint("Coincident", 5, 2, 4, 2))
sketch9.addConstraint(Sketcher.Constraint("Perpendicular", 0, 1))
sketch9.addConstraint(Sketcher.Constraint("Perpendicular", 1, 3))
sketch9.addConstraint(Sketcher.Constraint("Angle", 0, Q("45 deg")))
sketch9.addConstraint(Sketcher.Constraint("Angle", 4, Q("-76 deg")))
sketch9.addConstraint(Sketcher.Constraint("Distance", 0, 30.0))
sketch9.addConstraint(Sketcher.Constraint("Distance", 1, 1.525))
sketch9.addConstraint(Sketcher.Constraint("DistanceX", -1, 1, 0, 2, 64.6393))
sketch9.addConstraint(Sketcher.Constraint("DistanceY", -1, 1, 4, 2, 64.6393))
sketch9.addConstraint(Sketcher.Constraint("Distance", 3, 29.073709))
groove8 = body.newObject("PartDesign::Groove", "Groove007")
groove8.Profile = sketch9
groove8.ReferenceAxis = (sketch9, ["Axis0"])
groove8.Angle = 360

# Sketch on XY plane
sketch10 = body.newObject("Sketcher::SketchObject", "Sketch009")
sketch10.AttachmentSupport = (doc.getObject("XY_Plane"), [""])
sketch10.MapMode = "FlatFace"
sketch10.AttachmentOffset = App.Placement(App.Vector(0, 0, 7), App.Rotation())
sketch10.addGeometry(Part.LineSegment(App.Vector(64.639, 43.426, 0), App.Vector(85.853, 64.639, 0)), False)
sketch10.addGeometry(Part.LineSegment(App.Vector(85.853, 64.639, 0), App.Vector(84.774, 65.718, 0)), False)
sketch10.addGeometry(Part.LineSegment(App.Vector(84.774, 65.718, 0), App.Vector(84.774, 65.682, 0)), False)
sketch10.addGeometry(Part.LineSegment(App.Vector(84.774, 65.682, 0), App.Vector(64.216, 45.124, 0)), False)
sketch10.addGeometry(Part.LineSegment(App.Vector(64.216, 45.124, 0), App.Vector(64.639, 43.426, 0)), False)
sketch10.addGeometry(Part.LineSegment(App.Vector(85.853, 64.639, 0), App.Vector(64.639, 43.426, 0)), True)  # axis
sketch10.addConstraint(Sketcher.Constraint("Coincident", 0, 2, 1, 1))
sketch10.addConstraint(Sketcher.Constraint("Coincident", 1, 2, 2, 1))
sketch10.addConstraint(Sketcher.Constraint("Coincident", 2, 2, 3, 1))
sketch10.addConstraint(Sketcher.Constraint("Coincident", 3, 2, 4, 1))
sketch10.addConstraint(Sketcher.Constraint("Coincident", 4, 2, 0, 1))
sketch10.addConstraint(Sketcher.Constraint("Vertical", 2))
sketch10.addConstraint(Sketcher.Constraint("Coincident", 5, 1, 0, 2))
sketch10.addConstraint(Sketcher.Constraint("Coincident", 5, 2, 4, 2))
sketch10.addConstraint(Sketcher.Constraint("Perpendicular", 0, 1))
sketch10.addConstraint(Sketcher.Constraint("Perpendicular", 1, 3))
sketch10.addConstraint(Sketcher.Constraint("Angle", 0, Q("45 deg")))
sketch10.addConstraint(Sketcher.Constraint("Angle", 4, Q("-76 deg")))
sketch10.addConstraint(Sketcher.Constraint("Distance", 0, 30.0))
sketch10.addConstraint(Sketcher.Constraint("Distance", 1, 1.525))
sketch10.addConstraint(Sketcher.Constraint("DistanceY", -1, 1, 0, 2, 64.6393))
sketch10.addConstraint(Sketcher.Constraint("DistanceX", -1, 1, 4, 2, 64.6393))
sketch10.addConstraint(Sketcher.Constraint("Distance", 3, 29.073709))
groove9 = body.newObject("PartDesign::Groove", "Groove008")
groove9.Profile = sketch10
groove9.ReferenceAxis = (sketch10, ["Axis0"])
groove9.Angle = 360

# Sketch on XY plane
sketch11 = body.newObject("Sketcher::SketchObject", "Sketch010")
sketch11.AttachmentSupport = (doc.getObject("XY_Plane"), [""])
sketch11.MapMode = "FlatFace"
sketch11.AttachmentOffset = App.Placement(App.Vector(0, 0, 20), App.Rotation())
sketch11.addGeometry(Part.LineSegment(App.Vector(64.639, 43.426, 0), App.Vector(85.853, 64.639, 0)), False)
sketch11.addGeometry(Part.LineSegment(App.Vector(85.853, 64.639, 0), App.Vector(84.774, 65.718, 0)), False)
sketch11.addGeometry(Part.LineSegment(App.Vector(84.774, 65.718, 0), App.Vector(84.774, 65.682, 0)), False)
sketch11.addGeometry(Part.LineSegment(App.Vector(84.774, 65.682, 0), App.Vector(64.216, 45.124, 0)), False)
sketch11.addGeometry(Part.LineSegment(App.Vector(64.216, 45.124, 0), App.Vector(64.639, 43.426, 0)), False)
sketch11.addGeometry(Part.LineSegment(App.Vector(85.853, 64.639, 0), App.Vector(64.639, 43.426, 0)), True)  # axis
sketch11.addConstraint(Sketcher.Constraint("Coincident", 0, 2, 1, 1))
sketch11.addConstraint(Sketcher.Constraint("Coincident", 1, 2, 2, 1))
sketch11.addConstraint(Sketcher.Constraint("Coincident", 2, 2, 3, 1))
sketch11.addConstraint(Sketcher.Constraint("Coincident", 3, 2, 4, 1))
sketch11.addConstraint(Sketcher.Constraint("Coincident", 4, 2, 0, 1))
sketch11.addConstraint(Sketcher.Constraint("Vertical", 2))
sketch11.addConstraint(Sketcher.Constraint("Coincident", 5, 1, 0, 2))
sketch11.addConstraint(Sketcher.Constraint("Coincident", 5, 2, 4, 2))
sketch11.addConstraint(Sketcher.Constraint("Perpendicular", 0, 1))
sketch11.addConstraint(Sketcher.Constraint("Perpendicular", 1, 3))
sketch11.addConstraint(Sketcher.Constraint("Angle", 0, Q("45 deg")))
sketch11.addConstraint(Sketcher.Constraint("Angle", 4, Q("-76 deg")))
sketch11.addConstraint(Sketcher.Constraint("Distance", 0, 30.0))
sketch11.addConstraint(Sketcher.Constraint("Distance", 1, 1.525))
sketch11.addConstraint(Sketcher.Constraint("DistanceY", -1, 1, 0, 2, 64.6393))
sketch11.addConstraint(Sketcher.Constraint("DistanceX", -1, 1, 4, 2, 64.6393))
sketch11.addConstraint(Sketcher.Constraint("Distance", 3, 29.073709))
groove10 = body.newObject("PartDesign::Groove", "Groove009")
groove10.Profile = sketch11
groove10.ReferenceAxis = (sketch11, ["Axis0"])
groove10.Angle = 360

# Sketch on XY plane
sketch12 = body.newObject("Sketcher::SketchObject", "Sketch011")
sketch12.AttachmentSupport = (doc.getObject("XY_Plane"), [""])
sketch12.MapMode = "FlatFace"
sketch12.AttachmentOffset = App.Placement(App.Vector(0, 0, 20), App.Rotation())
sketch12.addGeometry(Part.LineSegment(App.Vector(43.426, 64.639, 0), App.Vector(64.639, 85.853, 0)), False)
sketch12.addGeometry(Part.LineSegment(App.Vector(64.639, 85.853, 0), App.Vector(63.561, 86.931, 0)), False)
sketch12.addGeometry(Part.LineSegment(App.Vector(63.561, 86.931, 0), App.Vector(63.561, 86.895, 0)), False)
sketch12.addGeometry(Part.LineSegment(App.Vector(63.561, 86.895, 0), App.Vector(43.003, 66.337, 0)), False)
sketch12.addGeometry(Part.LineSegment(App.Vector(43.003, 66.337, 0), App.Vector(43.426, 64.639, 0)), False)
sketch12.addGeometry(Part.LineSegment(App.Vector(64.639, 85.853, 0), App.Vector(43.426, 64.639, 0)), True)  # axis
sketch12.addConstraint(Sketcher.Constraint("Coincident", 0, 2, 1, 1))
sketch12.addConstraint(Sketcher.Constraint("Coincident", 1, 2, 2, 1))
sketch12.addConstraint(Sketcher.Constraint("Coincident", 2, 2, 3, 1))
sketch12.addConstraint(Sketcher.Constraint("Coincident", 3, 2, 4, 1))
sketch12.addConstraint(Sketcher.Constraint("Coincident", 4, 2, 0, 1))
sketch12.addConstraint(Sketcher.Constraint("Vertical", 2))
sketch12.addConstraint(Sketcher.Constraint("Coincident", 5, 1, 0, 2))
sketch12.addConstraint(Sketcher.Constraint("Coincident", 5, 2, 4, 2))
sketch12.addConstraint(Sketcher.Constraint("Perpendicular", 0, 1))
sketch12.addConstraint(Sketcher.Constraint("Perpendicular", 1, 3))
sketch12.addConstraint(Sketcher.Constraint("Angle", 0, Q("45 deg")))
sketch12.addConstraint(Sketcher.Constraint("Angle", 4, Q("-76 deg")))
sketch12.addConstraint(Sketcher.Constraint("Distance", 0, 30.0))
sketch12.addConstraint(Sketcher.Constraint("Distance", 1, 1.525))
sketch12.addConstraint(Sketcher.Constraint("DistanceX", -1, 1, 0, 2, 64.6393))
sketch12.addConstraint(Sketcher.Constraint("DistanceY", -1, 1, 4, 2, 64.6393))
sketch12.addConstraint(Sketcher.Constraint("Distance", 3, 29.073709))
groove11 = body.newObject("PartDesign::Groove", "Groove010")
groove11.Profile = sketch12
groove11.ReferenceAxis = (sketch12, ["Axis0"])
groove11.Angle = 360

# Sketch on XY plane
sketch13 = body.newObject("Sketcher::SketchObject", "Sketch012")
sketch13.AttachmentSupport = (doc.getObject("XY_Plane"), [""])
sketch13.MapMode = "FlatFace"
sketch13.AttachmentOffset = App.Placement(App.Vector(0, 0, 25), App.Rotation())
sketch13.addGeometry(Part.LineSegment(App.Vector(-58, 85, 0), App.Vector(58, 85, 0)), False)
sketch13.addGeometry(Part.LineSegment(App.Vector(58, 85, 0), App.Vector(85, 58, 0)), False)
sketch13.addGeometry(Part.LineSegment(App.Vector(85, 58, 0), App.Vector(85, -58, 0)), False)
sketch13.addGeometry(Part.LineSegment(App.Vector(85, -58, 0), App.Vector(58, -85, 0)), False)
sketch13.addGeometry(Part.LineSegment(App.Vector(58, -85, 0), App.Vector(-58, -85, 0)), False)
sketch13.addGeometry(Part.LineSegment(App.Vector(-58, -85, 0), App.Vector(-85, -58, 0)), False)
sketch13.addGeometry(Part.LineSegment(App.Vector(-85, -58, 0), App.Vector(-85, 58, 0)), False)
sketch13.addGeometry(Part.LineSegment(App.Vector(-85, 58, 0), App.Vector(-58, 85, 0)), False)
sketch13.addConstraint(Sketcher.Constraint("Coincident", 0, 2, 1, 1))
sketch13.addConstraint(Sketcher.Constraint("Coincident", 1, 2, 2, 1))
sketch13.addConstraint(Sketcher.Constraint("Coincident", 2, 2, 3, 1))
sketch13.addConstraint(Sketcher.Constraint("Coincident", 3, 2, 4, 1))
sketch13.addConstraint(Sketcher.Constraint("Coincident", 4, 2, 5, 1))
sketch13.addConstraint(Sketcher.Constraint("Coincident", 5, 2, 6, 1))
sketch13.addConstraint(Sketcher.Constraint("Coincident", 6, 2, 7, 1))
sketch13.addConstraint(Sketcher.Constraint("Coincident", 7, 2, 0, 1))
sketch13.addConstraint(Sketcher.Constraint("Horizontal", 0))
sketch13.addConstraint(Sketcher.Constraint("Vertical", 2))
sketch13.addConstraint(Sketcher.Constraint("Horizontal", 4))
sketch13.addConstraint(Sketcher.Constraint("Vertical", 6))
sketch13.addConstraint(Sketcher.Constraint("Symmetric", 0, 2, 4, 2, -1, 1))
sketch13.addConstraint(Sketcher.Constraint("Symmetric", 1, 2, 5, 2, -1, 1))
sketch13.addConstraint(Sketcher.Constraint("Perpendicular", 1, 3))
sketch13.addConstraint(Sketcher.Constraint("Perpendicular", 5, 7))
sketch13.addConstraint(Sketcher.Constraint("Horizontal", 2, 2, 5, 2))
sketch13.addConstraint(Sketcher.Constraint("Horizontal", 1, 2, 6, 2))
sketch13.addConstraint(Sketcher.Constraint("Vertical", 0, 2, 3, 2))
sketch13.addConstraint(Sketcher.Constraint("Equal", 4, 2))
sketch13.addConstraint(Sketcher.Constraint("DistanceY", -1, 1, 0, 2, 85.0))
sketch13.addConstraint(Sketcher.Constraint("DistanceX", 0, 1, 0, 2, 116.841471))
pad2 = body.newObject("PartDesign::Pad", "Pad001")
pad2.Profile = sketch13
pad2.Length = 3
pad2.Reversed = True

# Sketch on XY plane
sketch14 = body.newObject("Sketcher::SketchObject", "Sketch013")
sketch14.AttachmentSupport = (doc.getObject("XY_Plane"), [""])
sketch14.MapMode = "FlatFace"
sketch14.AttachmentOffset = App.Placement(App.Vector(0, 0, 22), App.Rotation())
sketch14.addGeometry(Part.LineSegment(App.Vector(28, 85, 0), App.Vector(28, -85, 0)), False)
sketch14.addGeometry(Part.LineSegment(App.Vector(28, -85, 0), App.Vector(-28, -85, 0)), False)
sketch14.addGeometry(Part.LineSegment(App.Vector(-28, -85, 0), App.Vector(-28, 85, 0)), False)
sketch14.addGeometry(Part.LineSegment(App.Vector(-28, 85, 0), App.Vector(28, 85, 0)), False)
sketch14.addConstraint(Sketcher.Constraint("Coincident", 0, 2, 1, 1))
sketch14.addConstraint(Sketcher.Constraint("Coincident", 1, 2, 2, 1))
sketch14.addConstraint(Sketcher.Constraint("Coincident", 2, 2, 3, 1))
sketch14.addConstraint(Sketcher.Constraint("Coincident", 3, 2, 0, 1))
sketch14.addConstraint(Sketcher.Constraint("Vertical", 0))
sketch14.addConstraint(Sketcher.Constraint("Horizontal", 1))
sketch14.addConstraint(Sketcher.Constraint("Vertical", 2))
sketch14.addConstraint(Sketcher.Constraint("Horizontal", 3))
sketch14.addConstraint(Sketcher.Constraint("Symmetric", 0, 2, 2, 2, -1, 1))
sketch14.addConstraint(Sketcher.Constraint("DistanceX", 1, 2, 1, 1, 55.0))
sketch14.addConstraint(Sketcher.Constraint("DistanceY", 0, 2, 0, 1, 170.0))
pocket1 = body.newObject("PartDesign::Pocket", "Pocket")
pocket1.Profile = sketch14
pocket1.Length = 5
pocket1.Reversed = True

doc.recompute()
